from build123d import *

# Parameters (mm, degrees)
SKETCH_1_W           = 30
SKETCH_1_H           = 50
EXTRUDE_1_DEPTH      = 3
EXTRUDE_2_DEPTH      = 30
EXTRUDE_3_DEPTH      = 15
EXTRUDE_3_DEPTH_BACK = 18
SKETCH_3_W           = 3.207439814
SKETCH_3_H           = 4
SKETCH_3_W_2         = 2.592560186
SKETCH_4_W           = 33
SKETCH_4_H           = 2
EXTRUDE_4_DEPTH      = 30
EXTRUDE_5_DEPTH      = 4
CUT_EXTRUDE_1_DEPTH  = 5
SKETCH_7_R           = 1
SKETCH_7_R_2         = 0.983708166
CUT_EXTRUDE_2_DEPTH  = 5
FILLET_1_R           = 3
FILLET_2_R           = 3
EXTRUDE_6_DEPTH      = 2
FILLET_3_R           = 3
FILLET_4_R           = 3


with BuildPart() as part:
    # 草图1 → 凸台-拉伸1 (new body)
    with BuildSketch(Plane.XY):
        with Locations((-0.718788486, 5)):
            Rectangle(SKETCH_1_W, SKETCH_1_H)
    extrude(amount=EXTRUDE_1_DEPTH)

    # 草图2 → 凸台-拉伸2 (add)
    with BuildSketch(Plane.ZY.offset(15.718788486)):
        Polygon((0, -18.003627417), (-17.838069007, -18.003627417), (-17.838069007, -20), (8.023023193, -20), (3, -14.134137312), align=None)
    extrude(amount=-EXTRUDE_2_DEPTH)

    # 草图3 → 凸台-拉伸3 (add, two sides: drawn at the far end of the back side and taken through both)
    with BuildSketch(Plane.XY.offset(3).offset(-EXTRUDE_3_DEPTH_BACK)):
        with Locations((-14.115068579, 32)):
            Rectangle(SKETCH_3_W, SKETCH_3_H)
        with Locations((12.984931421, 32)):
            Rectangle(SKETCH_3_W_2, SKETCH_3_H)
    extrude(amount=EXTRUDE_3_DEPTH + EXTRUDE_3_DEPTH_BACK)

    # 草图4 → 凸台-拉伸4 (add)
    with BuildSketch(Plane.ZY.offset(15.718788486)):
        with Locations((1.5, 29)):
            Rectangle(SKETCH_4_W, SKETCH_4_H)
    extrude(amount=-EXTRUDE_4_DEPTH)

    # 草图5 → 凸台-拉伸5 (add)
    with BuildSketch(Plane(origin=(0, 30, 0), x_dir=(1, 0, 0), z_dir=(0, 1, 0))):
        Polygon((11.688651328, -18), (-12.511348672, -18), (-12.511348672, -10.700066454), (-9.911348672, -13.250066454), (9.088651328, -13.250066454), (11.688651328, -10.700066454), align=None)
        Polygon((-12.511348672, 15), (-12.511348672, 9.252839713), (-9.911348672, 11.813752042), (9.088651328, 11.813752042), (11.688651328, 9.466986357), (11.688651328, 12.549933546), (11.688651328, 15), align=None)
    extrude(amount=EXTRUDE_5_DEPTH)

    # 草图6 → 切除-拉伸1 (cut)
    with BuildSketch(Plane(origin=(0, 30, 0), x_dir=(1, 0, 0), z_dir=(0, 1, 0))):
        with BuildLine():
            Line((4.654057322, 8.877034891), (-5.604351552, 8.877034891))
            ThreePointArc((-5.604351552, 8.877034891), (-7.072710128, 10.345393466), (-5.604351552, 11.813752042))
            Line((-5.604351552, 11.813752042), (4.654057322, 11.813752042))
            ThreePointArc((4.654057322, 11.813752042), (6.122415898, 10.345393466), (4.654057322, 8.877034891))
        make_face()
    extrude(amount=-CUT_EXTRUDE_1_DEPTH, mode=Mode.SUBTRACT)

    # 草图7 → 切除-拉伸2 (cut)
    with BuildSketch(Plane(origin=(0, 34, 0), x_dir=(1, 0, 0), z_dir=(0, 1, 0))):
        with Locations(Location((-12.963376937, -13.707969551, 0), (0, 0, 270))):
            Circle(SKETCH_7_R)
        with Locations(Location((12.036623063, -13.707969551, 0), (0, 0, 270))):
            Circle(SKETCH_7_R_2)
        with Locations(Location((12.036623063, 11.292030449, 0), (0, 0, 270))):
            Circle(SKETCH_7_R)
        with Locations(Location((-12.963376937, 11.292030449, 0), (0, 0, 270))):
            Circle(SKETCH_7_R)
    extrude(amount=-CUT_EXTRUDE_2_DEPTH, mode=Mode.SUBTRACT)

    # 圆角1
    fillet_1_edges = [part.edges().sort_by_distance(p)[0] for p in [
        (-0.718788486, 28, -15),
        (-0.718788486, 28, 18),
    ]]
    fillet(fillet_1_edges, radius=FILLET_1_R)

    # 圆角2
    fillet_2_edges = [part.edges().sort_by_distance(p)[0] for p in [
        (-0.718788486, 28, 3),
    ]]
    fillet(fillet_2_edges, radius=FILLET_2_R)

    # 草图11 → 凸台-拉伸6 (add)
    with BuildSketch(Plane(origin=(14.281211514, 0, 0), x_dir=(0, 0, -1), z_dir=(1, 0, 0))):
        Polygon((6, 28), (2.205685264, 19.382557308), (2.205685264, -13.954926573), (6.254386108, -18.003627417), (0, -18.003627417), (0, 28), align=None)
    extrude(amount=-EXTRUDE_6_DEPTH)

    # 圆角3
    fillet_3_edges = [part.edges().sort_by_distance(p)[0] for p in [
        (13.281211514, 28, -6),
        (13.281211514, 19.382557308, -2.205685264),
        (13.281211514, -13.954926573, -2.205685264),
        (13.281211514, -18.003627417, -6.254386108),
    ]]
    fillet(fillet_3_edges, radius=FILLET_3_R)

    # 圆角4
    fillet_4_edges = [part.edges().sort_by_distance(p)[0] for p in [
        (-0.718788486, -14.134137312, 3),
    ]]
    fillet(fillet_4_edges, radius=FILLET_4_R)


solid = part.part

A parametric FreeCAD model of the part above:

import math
import FreeCAD as App
import Part
import Sketcher

V = App.Vector
Q = App.Units.Quantity


def edges_at(feature, points):
    """Names of the edges that pass closest to the given points."""
    edges = feature.Shape.Edges
    near = lambda p: min(range(len(edges)), key=lambda i: edges[i].distToShape(Part.Vertex(*p))[0])
    return sorted({f"Edge{near(p) + 1}" for p in points})

doc = App.newDocument("Part")
params = doc.addObject("Spreadsheet::Sheet", "Params")
for row, (alias, value) in enumerate([
    ("sketch1_width", "30 mm"),
    ("sketch1_height", "50 mm"),
    ("pad1_length", "3 mm"),
    ("pad2_length", "30 mm"),
    ("sketch3_height", "4 mm"),
    ("pad3_length", "15 mm"),
    ("pad3_length2", "18 mm"),
    ("sketch4_width", "2 mm"),
    ("sketch4_height", "33 mm"),
    ("pad4_length", "30 mm"),
    ("sketch5_width", "19 mm"),
    ("sketch5_width2", "24.2 mm"),
    ("pad5_length", "4 mm"),
    ("pocket1_length", "5 mm"),
    ("sketch7_diameter", "2 mm"),
    ("pocket2_length", "5 mm"),
    ("fillet_radius", "3 mm"),
    ("fillet2_radius", "3 mm"),
    ("sketch8_height", "6 mm"),
    ("pad6_length", "2 mm"),
    ("fillet3_radius", "3 mm"),
    ("fillet4_radius", "3 mm"),
], start=1):
    params.set(f"A{row}", alias)
    params.set(f"B{row}", "=" + value)
    params.setAlias(f"B{row}", alias)

body = doc.addObject("PartDesign::Body", "Body")

# Sketch on XY plane
sketch1 = body.newObject("Sketcher::SketchObject", "Sketch")
sketch1.AttachmentSupport = (doc.getObject("XY_Plane"), [""])
sketch1.MapMode = "FlatFace"
sketch1.addGeometry([
    Part.LineSegment(V(-16, 30, 0), V(-16, -20, 0)),
    Part.LineSegment(V(-16, -20, 0), V(14, -20, 0)),
    Part.LineSegment(V(14, -20, 0), V(14, 30, 0)),
    Part.LineSegment(V(14, 30, 0), V(-16, 30, 0)),
], False)
sketch1.addConstraint([
    Sketcher.Constraint("Coincident", 0, 2, 1, 1),
    Sketcher.Constraint("Coincident", 1, 2, 2, 1),
    Sketcher.Constraint("Coincident", 2, 2, 3, 1),
    Sketcher.Constraint("Coincident", 3, 2, 0, 1),
    Sketcher.Constraint("Vertical", 0),
    Sketcher.Constraint("Horizontal", 1),
    Sketcher.Constraint("Vertical", 2),
    Sketcher.Constraint("Horizontal", 3),
    Sketcher.Constraint("DistanceX", 1, 1, 1, 2, Q("30 mm")),
    Sketcher.Constraint("DistanceY", 0, 2, 0, 1, Q("50 mm")),
    Sketcher.Constraint("DistanceY", 0, 2, -1, 1, Q("20 mm")),
    Sketcher.Constraint("DistanceX", 0, 2, -1, 1, Q("15.718788 mm")),
])
sketch1.setExpression("Constraints[8]", "Params.sketch1_width")
sketch1.setExpression("Constraints[9]", "Params.sketch1_height")
pad1 = body.newObject("PartDesign::Pad", "Pad")
pad1.Profile = sketch1
pad1.setExpression("Length", "Params.pad1_length")

# Sketch on YZ plane
sketch2 = body.newObject("Sketcher::SketchObject", "Sketch001")
sketch2.AttachmentSupport = (doc.getObject("YZ_Plane"), [""])
sketch2.MapMode = "FlatFace"
sketch2.AttachmentOffset = App.Placement(V(0, 0, -15.718788), App.Rotation())
sketch2.addGeometry([
    Part.LineSegment(V(-18, 0, 0), V(-18, -17.8, 0)),  # 0
    Part.LineSegment(V(-18, -17.8, 0), V(-20, -17.8, 0)),  # 1
    Part.LineSegment(V(-20, -17.8, 0), V(-20, 8, 0)),  # 2
    Part.LineSegment(V(-20, 8, 0), V(-14.1, 3, 0)),  # 3
    Part.LineSegment(V(-14.1, 3, 0), V(-18, 0, 0)),  # 4
], False)
sketch2.addConstraint([
    Sketcher.Constraint("Coincident", 0, 2, 1, 1),
    Sketcher.Constraint("Coincident", 1, 2, 2, 1),
    Sketcher.Constraint("Coincident", 2, 2, 3, 1),
    Sketcher.Constraint("Coincident", 3, 2, 4, 1),
    Sketcher.Constraint("Coincident", 4, 2, 0, 1),
    Sketcher.Constraint("Vertical", 0),
    Sketcher.Constraint("Horizontal", 1),
    Sketcher.Constraint("Vertical", 2),
    Sketcher.Constraint("PointOnObject", 4, 2, -1),
    Sketcher.Constraint("DistanceX", 1, 2, -1, 1, Q("20 mm")),
    Sketcher.Constraint("DistanceY", -1, 1, 3, 2, Q("3 mm")),
    Sketcher.Constraint("DistanceY", 0, 2, 0, 1, Q("17.838069 mm")),
    Sketcher.Constraint("Distance", 4, Q("4.896218 mm")),
    Sketcher.Constraint("DistanceX", 1, 2, 1, 1, Q("1.996373 mm")),
    Sketcher.Constraint("DistanceY", 2, 1, 2, 2, Q("25.861092 mm")),
])
pad2 = body.newObject("PartDesign::Pad", "Pad001")
pad2.Profile = sketch2
pad2.setExpression("Length", "Params.pad2_length")

# Sketch on XY plane
sketch3 = body.newObject("Sketcher::SketchObject", "Sketch002")
sketch3.AttachmentSupport = (doc.getObject("XY_Plane"), [""])
sketch3.MapMode = "FlatFace"
sketch3.AttachmentOffset = App.Placement(V(0, 0, 3), App.Rotation())
sketch3.addGeometry([
    Part.LineSegment(V(-15.7, 34, 0), V(-15.7, 30, 0)),  # 0
    Part.LineSegment(V(-15.7, 30, 0), V(-12.5, 30, 0)),  # 1
    Part.LineSegment(V(-12.5, 30, 0), V(-12.5, 34, 0)),  # 2
    Part.LineSegment(V(-12.5, 34, 0), V(-15.7, 34, 0)),  # 3
    Part.LineSegment(V(11.7, 34, 0), V(11.7, 30, 0)),  # 4
    Part.LineSegment(V(11.7, 30, 0), V(14.3, 30, 0)),  # 5
    Part.LineSegment(V(14.3, 30, 0), V(14.3, 34, 0)),  # 6
    Part.LineSegment(V(14.3, 34, 0), V(11.7, 34, 0)),  # 7
], False)
sketch3.addConstraint([
    Sketcher.Constraint("Coincident", 0, 2, 1, 1),
    Sketcher.Constraint("Coincident", 1, 2, 2, 1),
    Sketcher.Constraint("Coincident", 2, 2, 3, 1),
    Sketcher.Constraint("Coincident", 3, 2, 0, 1),
    Sketcher.Constraint("Coincident", 4, 2, 5, 1),
    Sketcher.Constraint("Coincident", 5, 2, 6, 1),
    Sketcher.Constraint("Coincident", 6, 2, 7, 1),
    Sketcher.Constraint("Coincident", 7, 2, 4, 1),
    Sketcher.Constraint("Vertical", 0),
    Sketcher.Constraint("Horizontal", 1),
    Sketcher.Constraint("Vertical", 2),
    Sketcher.Constraint("Horizontal", 3),
    Sketcher.Constraint("Vertical", 4),
    Sketcher.Constraint("Horizontal", 5),
    Sketcher.Constraint("Vertical", 6),
    Sketcher.Constraint("Horizontal", 7),
    Sketcher.Constraint("Horizontal", 1, 2, 4, 2),
    Sketcher.Constraint("Horizontal", 3, 2, 6, 2),
    Sketcher.Constraint("DistanceY", 0, 2, 0, 1, Q("4 mm")),
    Sketcher.Constraint("DistanceY", -1, 1, 0, 2, Q("30 mm")),
    Sketcher.Constraint("DistanceX", 0, 2, 5, 2, Q("30 mm")),
    Sketcher.Constraint("DistanceX", 1, 2, 4, 2, Q("24.2 mm")),
    Sketcher.Constraint("DistanceX", 1, 1, 1, 2, Q("3.20744 mm")),
    Sketcher.Constraint("DistanceX", 0, 2, -1, 1, Q("15.718788 mm")),
])
sketch3.setExpression("Constraints[18]", "Params.sketch3_height")
pad3 = body.newObject("PartDesign::Pad", "Pad002")
pad3.Profile = sketch3
pad3.Type = "TwoLengths"
pad3.setExpression("Length", "Params.pad3_length")
pad3.setExpression("Length2", "Params.pad3_length2")

# Sketch on YZ plane
sketch4 = body.newObject("Sketcher::SketchObject", "Sketch003")
sketch4.AttachmentSupport = (doc.getObject("YZ_Plane"), [""])
sketch4.MapMode = "FlatFace"
sketch4.AttachmentOffset = App.Placement(V(0, 0, -15.718788), App.Rotation())
sketch4.addGeometry([
    Part.LineSegment(V(30, -15, 0), V(28, -15, 0)),
    Part.LineSegment(V(28, -15, 0), V(28, 18, 0)),
    Part.LineSegment(V(28, 18, 0), V(30, 18, 0)),
    Part.LineSegment(V(30, 18, 0), V(30, -15, 0)),
], False)
sketch4.addConstraint([
    Sketcher.Constraint("Coincident", 0, 2, 1, 1),
    Sketcher.Constraint("Coincident", 1, 2, 2, 1),
    Sketcher.Constraint("Coincident", 2, 2, 3, 1),
    Sketcher.Constraint("Coincident", 3, 2, 0, 1),
    Sketcher.Constraint("Horizontal", 0),
    Sketcher.Constraint("Vertical", 1),
    Sketcher.Constraint("Horizontal", 2),
    Sketcher.Constraint("Vertical", 3),
    Sketcher.Constraint("DistanceX", 0, 2, 0, 1, Q("2 mm")),
    Sketcher.Constraint("DistanceY", 1, 1, 1, 2, Q("33 mm")),
    Sketcher.Constraint("DistanceX", -1, 1, 0, 2, Q("28 mm")),
    Sketcher.Constraint("DistanceY", 0, 2, -1, 1, Q("15 mm")),
])
sketch4.setExpression("Constraints[8]", "Params.sketch4_width")
sketch4.setExpression("Constraints[9]", "Params.sketch4_height")
pad4 = body.newObject("PartDesign::Pad", "Pad003")
pad4.Profile = sketch4
pad4.setExpression("Length", "Params.pad4_length")

# Sketch on XZ plane
sketch5 = body.newObject("Sketcher::SketchObject", "Sketch004")
sketch5.AttachmentSupport = (doc.getObject("XZ_Plane"), [""])
sketch5.MapMode = "FlatFace"
sketch5.AttachmentOffset = App.Placement(V(0, 0, -30), App.Rotation())
sketch5.addGeometry([
    Part.LineSegment(V(-12.5, 18, 0), V(11.7, 18, 0)),  # 0
    Part.LineSegment(V(11.7, 18, 0), V(11.7, 10.7, 0)),  # 1
    Part.LineSegment(V(11.7, 10.7, 0), V(9.1, 13.3, 0)),  # 2
    Part.LineSegment(V(9.1, 13.3, 0), V(-9.9, 13.3, 0)),  # 3
    Part.LineSegment(V(-9.9, 13.3, 0), V(-12.5, 10.7, 0)),  # 4
    Part.LineSegment(V(-12.5, 10.7, 0), V(-12.5, 18, 0)),  # 5
    Part.LineSegment(V(-12.5, -15, 0), V(-12.5, -9.3, 0)),  # 6
    Part.LineSegment(V(-12.5, -9.3, 0), V(-9.9, -11.8, 0)),  # 7
    Part.LineSegment(V(-9.9, -11.8, 0), V(9.1, -11.8, 0)),  # 8
    Part.LineSegment(V(9.1, -11.8, 0), V(11.7, -9.5, 0)),  # 9
    Part.LineSegment(V(11.7, -9.5, 0), V(11.7, -15, 0)),  # 10
    Part.LineSegment(V(11.7, -15, 0), V(-12.5, -15, 0)),  # 11
], False)
sketch5.addConstraint([
    Sketcher.Constraint("Coincident", 0, 2, 1, 1),
    Sketcher.Constraint("Coincident", 1, 2, 2, 1),
    Sketcher.Constraint("Coincident", 2, 2, 3, 1),
    Sketcher.Constraint("Coincident", 3, 2, 4, 1),
    Sketcher.Constraint("Coincident", 4, 2, 5, 1),
    Sketcher.Constraint("Coincident", 5, 2, 0, 1),
    Sketcher.Constraint("Coincident", 6, 2, 7, 1),
    Sketcher.Constraint("Coincident", 7, 2, 8, 1),
    Sketcher.Constraint("Coincident", 8, 2, 9, 1),
    Sketcher.Constraint("Coincident", 9, 2, 10, 1),
    Sketcher.Constraint("Coincident", 10, 2, 11, 1),
    Sketcher.Constraint("Coincident", 11, 2, 6, 1),
    Sketcher.Constraint("Horizontal", 0),
    Sketcher.Constraint("Vertical", 1),
    Sketcher.Constraint("Horizontal", 3),
    Sketcher.Constraint("Vertical", 5),
    Sketcher.Constraint("Vertical", 6),
    Sketcher.Constraint("Horizontal", 8),
    Sketcher.Constraint("Vertical", 10),
    Sketcher.Constraint("Horizontal", 11),
    Sketcher.Constraint("Horizontal", 1, 2, 4, 2),
    Sketcher.Constraint("Vertical", 5, 2, 6, 2),
    Sketcher.Constraint("Vertical", 3, 2, 7, 2),
    Sketcher.Constraint("Vertical", 2, 2, 8, 2),
    Sketcher.Constraint("Vertical", 1, 2, 9, 2),
    Sketcher.Constraint("Equal", 2, 4),
    Sketcher.Constraint("DistanceX", 3, 2, 3, 1, Q("19 mm")),
    Sketcher.Constraint("DistanceX", 0, 1, 0, 2, Q("24.2 mm")),
    Sketcher.Constraint("DistanceY", -1, 1, 0, 2, Q("18 mm")),
    Sketcher.Constraint("DistanceY", 10, 2, -1, 1, Q("15 mm")),
    Sketcher.Constraint("DistanceY", 1, 2, 2, 2, Q("2.55 mm")),
    Sketcher.Constraint("DistanceY", 6, 1, 6, 2, Q("5.74716 mm")),
    Sketcher.Constraint("Distance", 7, Q("3.649421 mm")),
    Sketcher.Constraint("Distance", 9, Q("3.502472 mm")),
    Sketcher.Constraint("DistanceY", 1, 2, 1, 1, Q("7.299934 mm")),
    Sketcher.Constraint("DistanceX", -1, 1, 0, 2, Q("11.688651 mm")),
])
sketch5.setExpression("Constraints[26]", "Params.sketch5_width")
sketch5.setExpression("Constraints[27]", "Params.sketch5_width2")
pad5 = body.newObject("PartDesign::Pad", "Pad004")
pad5.Profile = sketch5
pad5.setExpression("Length", "Params.pad5_length")
pad5.Reversed = True

# Sketch on XZ plane
sketch6 = body.newObject("Sketcher::SketchObject", "Sketch005")
sketch6.AttachmentSupport = (doc.getObject("XZ_Plane"), [""])
sketch6.MapMode = "FlatFace"
sketch6.AttachmentOffset = App.Placement(V(0, 0, -30), App.Rotation())
sketch6.addGeometry([
    Part.LineSegment(V(-5.6, -8.9, 0), V(4.7, -8.9, 0)),
    Part.ArcOfCircle(Part.Circle(V(4.7, -10.3, 0), V(0, 0, 1), 1.5), math.radians(-90), math.radians(90)),
    Part.LineSegment(V(4.7, -11.8, 0), V(-5.6, -11.8, 0)),
    Part.ArcOfCircle(Part.Circle(V(-5.6, -10.3, 0), V(0, 0, 1), 1.5), math.radians(90), math.radians(270)),
], False)
sketch6.addConstraint([
    Sketcher.Constraint("Tangent", 0, 2, 1, 2),
    Sketcher.Constraint("Tangent", 1, 1, 2, 1),
    Sketcher.Constraint("Tangent", 2, 2, 3, 2),
    Sketcher.Constraint("Tangent", 3, 1, 0, 1),
    Sketcher.Constraint("Horizontal", 0),
    Sketcher.Constraint("Horizontal", 2),
    Sketcher.Constraint("Radius", 1, Q("1.468359 mm")),
    Sketcher.Constraint("DistanceX", 0, 1, 0, 2, Q("10.258409 mm")),
    Sketcher.Constraint("DistanceX", 3, 3, -1, 1, Q("5.604352 mm")),
    Sketcher.Constraint("DistanceY", 1, 3, -1, 1, Q("10.345393 mm")),
])
pocket1 = body.newObject("PartDesign::Pocket", "Pocket")
pocket1.Profile = sketch6
pocket1.setExpression("Length", "Params.pocket1_length")
pocket1.Reversed = True

# Sketch on XZ plane
sketch7 = body.newObject("Sketcher::SketchObject", "Sketch006")
sketch7.AttachmentSupport = (doc.getObject("XZ_Plane"), [""])
sketch7.MapMode = "FlatFace"
sketch7.AttachmentOffset = App.Placement(V(0, 0, -34), App.Rotation())
sketch7.addGeometry([
    Part.Circle(V(-13, 13.7, 0), V(0, 0, 1), 1),
    Part.Circle(V(12, 13.7, 0), V(0, 0, 1), 1),
    Part.Circle(V(12, -11.3, 0), V(0, 0, 1), 1),
    Part.Circle(V(-13, -11.3, 0), V(0, 0, 1), 1),
], False)
sketch7.addConstraint([
    Sketcher.Constraint("Equal", 0, 2),
    Sketcher.Constraint("Equal", 2, 3),
    Sketcher.Constraint("Horizontal", 0, 3, 1, 3),
    Sketcher.Constraint("Horizontal", 2, 3, 3, 3),
    Sketcher.Constraint("Vertical", 1, 3, 2, 3),
    Sketcher.Constraint("Vertical", 0, 3, 3, 3),
    Sketcher.Constraint("Diameter", 0, Q("2 mm")),
    Sketcher.Constraint("DistanceX", 0, 3, 1, 3, Q("25 mm")),
    Sketcher.Constraint("DistanceY", 2, 3, 1, 3, Q("25 mm")),
    Sketcher.Constraint("Diameter", 1, Q("1.967416 mm")),
    Sketcher.Constraint("DistanceY", -1, 1, 0, 3, Q("13.70797 mm")),
    Sketcher.Constraint("DistanceX", 0, 3, -1, 1, Q("12.963377 mm")),
])
sketch7.setExpression("Constraints[6]", "Params.sketch7_diameter")
pocket2 = body.newObject("PartDesign::Pocket", "Pocket001")
pocket2.Profile = sketch7
pocket2.setExpression("Length", "Params.pocket2_length")
pocket2.Reversed = True
doc.recompute()

fillet = body.newObject("PartDesign::Fillet", "Fillet")
fillet.Base = (pocket2, edges_at(pocket2, [(-0.719, 28, -15), (-0.719, 28, 18)]))
fillet.setExpression("Radius", "Params.fillet_radius")
doc.recompute()

fillet2 = body.newObject("PartDesign::Fillet", "Fillet001")
fillet2.Base = (fillet, edges_at(fillet, [(-0.719, 28, 3)]))
fillet2.setExpression("Radius", "Params.fillet2_radius")

# Sketch on YZ plane
sketch8 = body.newObject("Sketcher::SketchObject", "Sketch007")
sketch8.AttachmentSupport = (doc.getObject("YZ_Plane"), [""])
sketch8.MapMode = "FlatFace"
sketch8.AttachmentOffset = App.Placement(V(0, 0, 14.281212), App.Rotation())
sketch8.addGeometry([
    Part.LineSegment(V(19, -2, 0), V(28, -6, 0)),  # 0
    Part.LineSegment(V(28, -6, 0), V(28, 0, 0)),  # 1
    Part.LineSegment(V(28, 0, 0), V(-18, 0, 0)),  # 2
    Part.LineSegment(V(-18, 0, 0), V(-18, -6, 0)),  # 3
    Part.LineSegment(V(-18, -6, 0), V(-14, -2, 0)),  # 4
    Part.LineSegment(V(-14, -2, 0), V(19, -2, 0)),  # 5
], False)
sketch8.addConstraint([
    Sketcher.Constraint("Coincident", 0, 2, 1, 1),
    Sketcher.Constraint("Coincident", 1, 2, 2, 1),
    Sketcher.Constraint("Coincident", 2, 2, 3, 1),
    Sketcher.Constraint("Coincident", 3, 2, 4, 1),
    Sketcher.Constraint("Coincident", 4, 2, 5, 1),
    Sketcher.Constraint("Coincident", 5, 2, 0, 1),
    Sketcher.Constraint("Vertical", 1),
    Sketcher.Constraint("Horizontal", 2),
    Sketcher.Constraint("Vertical", 3),
    Sketcher.Constraint("Horizontal", 5),
    Sketcher.Constraint("PointOnObject", 1, 2, -1),
    Sketcher.Constraint("DistanceY", 1, 1, 1, 2, Q("6 mm")),
    Sketcher.Constraint("Angle", 4, Q("45 deg")),
    Sketcher.Constraint("DistanceX", -1, 1, 0, 2, Q("28 mm")),
    Sketcher.Constraint("DistanceX", 2, 2, 4, 2, Q("4.048701 mm")),
    Sketcher.Constraint("DistanceX", 2, 2, 2, 1, Q("46.003627 mm")),
    Sketcher.Constraint("DistanceX", 5, 1, 5, 2, Q("33.337484 mm")),
    Sketcher.Constraint("DistanceY", 3, 2, 3, 1, Q("6.254386 mm")),
])
sketch8.setExpression("Constraints[11]", "Params.sketch8_height")
pad6 = body.newObject("PartDesign::Pad", "Pad005")
pad6.Profile = sketch8
pad6.setExpression("Length", "Params.pad6_length")
pad6.Reversed = True
doc.recompute()

fillet3 = body.newObject("PartDesign::Fillet", "Fillet002")
fillet3.Base = (pad6, edges_at(pad6, [
    (13.281, 28, -6),
    (13.281, 19.383, -2.206),
    (13.281, -13.955, -2.206),
    (13.281, -18.004, -6.254),
]))
fillet3.setExpression("Radius", "Params.fillet3_radius")
doc.recompute()

fillet4 = body.newObject("PartDesign::Fillet", "Fillet003")
fillet4.Base = (fillet3, edges_at(fillet3, [(-0.719, -14.134, 3)]))
fillet4.setExpression("Radius", "Params.fillet4_radius")

doc.recompute()
